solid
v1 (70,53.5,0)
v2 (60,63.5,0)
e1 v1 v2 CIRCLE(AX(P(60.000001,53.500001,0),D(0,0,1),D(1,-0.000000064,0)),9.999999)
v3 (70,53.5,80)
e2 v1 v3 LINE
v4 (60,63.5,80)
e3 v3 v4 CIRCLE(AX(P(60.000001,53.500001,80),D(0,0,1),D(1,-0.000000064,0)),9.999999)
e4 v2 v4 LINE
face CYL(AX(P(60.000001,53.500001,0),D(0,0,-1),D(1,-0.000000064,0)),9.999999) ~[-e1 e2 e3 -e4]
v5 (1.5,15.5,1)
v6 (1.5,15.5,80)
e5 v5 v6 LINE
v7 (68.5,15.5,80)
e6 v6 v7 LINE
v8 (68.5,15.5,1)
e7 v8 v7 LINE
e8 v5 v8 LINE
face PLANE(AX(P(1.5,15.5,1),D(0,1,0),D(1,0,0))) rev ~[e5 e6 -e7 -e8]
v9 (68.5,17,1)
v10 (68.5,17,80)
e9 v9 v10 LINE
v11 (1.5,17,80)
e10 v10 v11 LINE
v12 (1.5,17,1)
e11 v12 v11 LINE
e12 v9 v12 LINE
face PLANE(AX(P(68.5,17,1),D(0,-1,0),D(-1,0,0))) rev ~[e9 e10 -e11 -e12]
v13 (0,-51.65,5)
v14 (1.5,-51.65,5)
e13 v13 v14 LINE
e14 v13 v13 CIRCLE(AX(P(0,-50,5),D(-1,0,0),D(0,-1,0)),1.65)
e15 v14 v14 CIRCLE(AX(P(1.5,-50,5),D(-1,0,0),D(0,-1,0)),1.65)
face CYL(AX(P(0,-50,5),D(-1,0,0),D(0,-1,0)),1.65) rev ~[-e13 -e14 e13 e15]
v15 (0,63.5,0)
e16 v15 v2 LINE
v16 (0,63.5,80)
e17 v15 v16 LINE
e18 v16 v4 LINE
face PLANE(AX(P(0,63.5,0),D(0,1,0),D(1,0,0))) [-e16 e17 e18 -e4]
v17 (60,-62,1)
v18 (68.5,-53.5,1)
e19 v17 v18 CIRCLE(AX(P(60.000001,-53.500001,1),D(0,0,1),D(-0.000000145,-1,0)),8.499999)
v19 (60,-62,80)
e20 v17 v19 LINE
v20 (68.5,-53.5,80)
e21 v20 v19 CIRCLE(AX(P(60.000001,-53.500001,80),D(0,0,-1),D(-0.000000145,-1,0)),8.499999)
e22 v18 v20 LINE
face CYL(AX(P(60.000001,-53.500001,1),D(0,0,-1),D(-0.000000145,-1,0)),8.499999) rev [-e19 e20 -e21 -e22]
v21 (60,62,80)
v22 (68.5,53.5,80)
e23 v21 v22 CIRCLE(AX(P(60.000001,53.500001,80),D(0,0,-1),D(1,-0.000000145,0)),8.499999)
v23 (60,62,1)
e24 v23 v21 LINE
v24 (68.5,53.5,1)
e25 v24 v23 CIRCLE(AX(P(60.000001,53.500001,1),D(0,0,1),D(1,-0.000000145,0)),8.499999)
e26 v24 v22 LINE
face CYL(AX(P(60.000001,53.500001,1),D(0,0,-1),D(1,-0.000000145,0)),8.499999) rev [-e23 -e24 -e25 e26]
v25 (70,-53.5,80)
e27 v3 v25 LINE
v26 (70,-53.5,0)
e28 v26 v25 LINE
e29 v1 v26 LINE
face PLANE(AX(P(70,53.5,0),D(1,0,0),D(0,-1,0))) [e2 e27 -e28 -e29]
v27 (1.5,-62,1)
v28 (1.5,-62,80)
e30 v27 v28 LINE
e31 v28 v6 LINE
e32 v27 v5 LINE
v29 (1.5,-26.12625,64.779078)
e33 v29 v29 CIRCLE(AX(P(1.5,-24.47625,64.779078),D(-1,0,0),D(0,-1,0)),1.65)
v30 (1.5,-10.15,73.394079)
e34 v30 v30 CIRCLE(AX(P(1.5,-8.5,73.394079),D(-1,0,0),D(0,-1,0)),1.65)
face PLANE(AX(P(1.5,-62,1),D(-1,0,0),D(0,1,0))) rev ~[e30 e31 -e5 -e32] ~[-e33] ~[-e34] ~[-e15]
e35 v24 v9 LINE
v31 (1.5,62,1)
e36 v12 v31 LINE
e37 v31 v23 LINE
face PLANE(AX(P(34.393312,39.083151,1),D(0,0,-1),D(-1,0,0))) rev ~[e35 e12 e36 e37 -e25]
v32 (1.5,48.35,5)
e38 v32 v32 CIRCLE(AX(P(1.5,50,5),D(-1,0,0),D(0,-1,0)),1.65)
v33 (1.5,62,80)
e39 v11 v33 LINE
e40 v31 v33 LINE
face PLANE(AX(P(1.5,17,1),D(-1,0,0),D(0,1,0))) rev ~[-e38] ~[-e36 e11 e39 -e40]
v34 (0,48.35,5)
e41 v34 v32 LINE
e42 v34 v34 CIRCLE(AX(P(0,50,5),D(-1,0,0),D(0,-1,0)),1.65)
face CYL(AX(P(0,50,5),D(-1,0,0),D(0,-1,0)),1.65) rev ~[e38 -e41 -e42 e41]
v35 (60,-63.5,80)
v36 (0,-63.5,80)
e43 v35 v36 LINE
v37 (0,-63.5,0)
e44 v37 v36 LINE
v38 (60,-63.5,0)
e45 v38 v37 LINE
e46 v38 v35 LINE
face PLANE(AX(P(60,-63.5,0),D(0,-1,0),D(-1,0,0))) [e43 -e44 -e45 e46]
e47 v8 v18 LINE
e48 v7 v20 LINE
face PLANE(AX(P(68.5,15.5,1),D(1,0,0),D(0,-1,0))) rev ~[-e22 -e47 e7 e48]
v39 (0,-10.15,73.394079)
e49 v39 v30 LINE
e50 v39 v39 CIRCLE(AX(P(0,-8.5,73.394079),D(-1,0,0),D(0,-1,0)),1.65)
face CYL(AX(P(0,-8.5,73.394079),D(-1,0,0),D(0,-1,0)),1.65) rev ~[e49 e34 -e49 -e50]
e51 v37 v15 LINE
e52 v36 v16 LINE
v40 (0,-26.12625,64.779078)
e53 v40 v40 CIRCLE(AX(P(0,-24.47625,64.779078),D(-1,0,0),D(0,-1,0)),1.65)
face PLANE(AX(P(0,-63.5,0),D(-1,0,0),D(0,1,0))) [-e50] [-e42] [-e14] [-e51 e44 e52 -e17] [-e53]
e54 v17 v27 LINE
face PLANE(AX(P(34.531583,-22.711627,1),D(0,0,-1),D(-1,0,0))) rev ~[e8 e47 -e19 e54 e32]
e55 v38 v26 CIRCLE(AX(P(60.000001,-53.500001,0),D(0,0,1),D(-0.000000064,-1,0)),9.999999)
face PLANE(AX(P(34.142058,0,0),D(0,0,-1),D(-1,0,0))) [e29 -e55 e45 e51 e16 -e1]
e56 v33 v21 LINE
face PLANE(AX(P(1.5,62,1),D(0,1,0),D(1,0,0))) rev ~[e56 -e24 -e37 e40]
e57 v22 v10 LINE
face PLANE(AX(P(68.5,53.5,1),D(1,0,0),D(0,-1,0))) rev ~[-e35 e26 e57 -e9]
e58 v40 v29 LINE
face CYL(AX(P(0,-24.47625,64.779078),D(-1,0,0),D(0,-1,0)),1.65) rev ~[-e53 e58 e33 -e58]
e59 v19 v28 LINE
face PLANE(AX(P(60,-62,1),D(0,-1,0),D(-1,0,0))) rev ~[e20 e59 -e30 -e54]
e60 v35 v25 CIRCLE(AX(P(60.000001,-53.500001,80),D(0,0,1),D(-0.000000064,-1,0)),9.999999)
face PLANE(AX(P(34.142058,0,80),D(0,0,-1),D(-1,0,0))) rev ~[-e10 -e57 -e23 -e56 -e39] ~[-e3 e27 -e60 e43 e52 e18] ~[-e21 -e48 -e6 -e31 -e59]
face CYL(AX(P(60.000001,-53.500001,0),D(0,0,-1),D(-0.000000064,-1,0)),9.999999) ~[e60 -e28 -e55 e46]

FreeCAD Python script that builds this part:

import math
import FreeCAD as App
import Part
import Sketcher

doc = App.newDocument("Part")
params = doc.addObject("Spreadsheet::Sheet", "Params")
for row, (alias, value) in enumerate([
    ("sketch1_radius", "9.999999 mm"),
    ("sketch1_width", "60 mm"),
    ("sketch1_height", "127 mm"),
    ("pad1_length", "80 mm"),
    ("sketch2_radius", "8.499999 mm"),
    ("sketch2_width", "67 mm"),
    ("sketch2_height", "45 mm"),
    ("sketch2_height2", "69 mm"),
    ("sketch3_diameter", "3.3 mm"),
    ("pocket2_length", "5 mm"),
], start=1):
    params.set(f"A{row}", alias)
    params.set(f"B{row}", "=" + value)
    params.setAlias(f"B{row}", alias)

body = doc.addObject("PartDesign::Body", "Body")

sketch1 = body.newObject("Sketcher::SketchObject", "Sketch")
sketch1.AttachmentSupport = (doc.getObject("XY_Plane"), [""])
sketch1.MapMode = "FlatFace"
sketch1.addGeometry([
    Part.LineSegment(App.Vector(60, 64, 0), App.Vector(0, 64, 0)),
    Part.LineSegment(App.Vector(0, 64, 0), App.Vector(0, -64, 0)),
    Part.LineSegment(App.Vector(0, -64, 0), App.Vector(60, -64, 0)),
    Part.ArcOfCircle(Part.Circle(App.Vector(60, -54, 0), App.Vector(0, 0, 1), 10), math.radians(-90), math.radians(0)),
    Part.LineSegment(App.Vector(70, -54, 0), App.Vector(70, 54, 0)),
    Part.ArcOfCircle(Part.Circle(App.Vector(60, 54, 0), App.Vector(0, 0, 1), 10), math.radians(0), math.radians(90)),
], False)
sketch1.addConstraint([
    Sketcher.Constraint("Coincident", 0, 2, 1, 1),
    Sketcher.Constraint("Coincident", 1, 2, 2, 1),
    Sketcher.Constraint("Tangent", 2, 2, 3, 1),
    Sketcher.Constraint("Tangent", 3, 2, 4, 1),
    Sketcher.Constraint("Tangent", 4, 2, 5, 1),
    Sketcher.Constraint("Tangent", 5, 2, 0, 1),
    Sketcher.Constraint("Horizontal", 0),
    Sketcher.Constraint("Vertical", 1),
    Sketcher.Constraint("Horizontal", 2),
    Sketcher.Constraint("Vertical", 4),
    Sketcher.Constraint("Equal", 3, 5),
    Sketcher.Constraint("Symmetric", 0, 2, 1, 2, -1, 1),
    Sketcher.Constraint("Radius", 3, 9.999999),
    Sketcher.Constraint("DistanceX", 0, 2, 0, 1, 60.0),
    Sketcher.Constraint("DistanceY", 1, 2, 1, 1, 127.0),
])
sketch1.setExpression("Constraints[12]", "Params.sketch1_radius")
sketch1.setExpression("Constraints[13]", "Params.sketch1_width")
sketch1.setExpression("Constraints[14]", "Params.sketch1_height")
pad1 = body.newObject("PartDesign::Pad", "Pad")
pad1.Profile = sketch1
pad1.setExpression("Length", "Params.pad1_length")

sketch2 = body.newObject("Sketcher::SketchObject", "Sketch001")
sketch2.AttachmentSupport = (doc.getObject("XY_Plane"), [""])
sketch2.MapMode = "FlatFace"
sketch2.AttachmentOffset = App.Placement(App.Vector(0, 0, 1), App.Rotation())
sketch2.addGeometry([
    Part.LineSegment(App.Vector(60, 62, 0), App.Vector(2, 62, 0)),
    Part.LineSegment(App.Vector(2, 62, 0), App.Vector(2, 17, 0)),
    Part.LineSegment(App.Vector(2, 17, 0), App.Vector(68, 17, 0)),
    Part.LineSegment(App.Vector(68, 17, 0), App.Vector(68, 54, 0)),
    Part.ArcOfCircle(Part.Circle(App.Vector(60, 54, 0), App.Vector(0, 0, 1), 8), math.radians(0), math.radians(90)),
    Part.LineSegment(App.Vector(68, 16, 0), App.Vector(2, 16, 0)),
    Part.LineSegment(App.Vector(2, 16, 0), App.Vector(2, -62, 0)),
    Part.LineSegment(App.Vector(2, -62, 0), App.Vector(60, -62, 0)),
    Part.ArcOfCircle(Part.Circle(App.Vector(60, -54, 0), App.Vector(0, 0, 1), 8), math.radians(-90), math.radians(0)),
    Part.LineSegment(App.Vector(68, -54, 0), App.Vector(68, 16, 0)),
], False)
sketch2.addConstraint([
    Sketcher.Constraint("Coincident", 0, 2, 1, 1),
    Sketcher.Constraint("Coincident", 1, 2, 2, 1),
    Sketcher.Constraint("Coincident", 2, 2, 3, 1),
    Sketcher.Constraint("Tangent", 3, 2, 4, 1),
    Sketcher.Constraint("Tangent", 4, 2, 0, 1),
    Sketcher.Constraint("Coincident", 5, 2, 6, 1),
    Sketcher.Constraint("Coincident", 6, 2, 7, 1),
    Sketcher.Constraint("Tangent", 7, 2, 8, 1),
    Sketcher.Constraint("Tangent", 8, 2, 9, 1),
    Sketcher.Constraint("Coincident", 9, 2, 5, 1),
    Sketcher.Constraint("Horizontal", 0),
    Sketcher.Constraint("Vertical", 1),
    Sketcher.Constraint("Horizontal", 2),
    Sketcher.Constraint("Vertical", 3),
    Sketcher.Constraint("Horizontal", 5),
    Sketcher.Constraint("Vertical", 6),
    Sketcher.Constraint("Horizontal", 7),
    Sketcher.Constraint("Vertical", 9),
    Sketcher.Constraint("Equal", 4, 8),
    Sketcher.Constraint("Symmetric", 4, 3, 8, 3, -1),
    Sketcher.Constraint("Vertical", 1, 2, 5, 2),
    Sketcher.Constraint("Radius", 4, 8.499999),
    Sketcher.Constraint("DistanceX", 2, 1, 2, 2, 67.0),
    Sketcher.Constraint("DistanceY", 1, 2, 1, 1, 45.0),
    Sketcher.Constraint("DistanceY", 9, 1, 9, 2, 69.0),
    Sketcher.Constraint("DistanceX", -1, 1, 4, 3, 60.000001),
    Sketcher.Constraint("DistanceY", -1, 1, 0, 2, 62.0),
])
sketch2.setExpression("Constraints[21]", "Params.sketch2_radius")
sketch2.setExpression("Constraints[22]", "Params.sketch2_width")
sketch2.setExpression("Constraints[23]", "Params.sketch2_height")
sketch2.setExpression("Constraints[24]", "Params.sketch2_height2")
pocket1 = body.newObject("PartDesign::Pocket", "Pocket")
pocket1.Profile = sketch2
pocket1.Type = "ThroughAll"
pocket1.Reversed = True

sketch3 = body.newObject("Sketcher::SketchObject", "Sketch002")
sketch3.AttachmentSupport = (doc.getObject("YZ_Plane"), [""])
sketch3.MapMode = "FlatFace"
sketch3.addGeometry([
    Part.Circle(App.Vector(50, 5, 0), App.Vector(0, 0, 1), 1.6),
    Part.Circle(App.Vector(-50, 5, 0), App.Vector(0, 0, 1), 1.6),
    Part.Circle(App.Vector(-8.5, 73.4, 0), App.Vector(0, 0, 1), 1.6),
    Part.Circle(App.Vector(-24.5, 64.8, 0), App.Vector(0, 0, 1), 1.6),
], False)
sketch3.addConstraint([
    Sketcher.Constraint("Equal", 0, 1),
    Sketcher.Constraint("Equal", 1, 2),
    Sketcher.Constraint("Equal", 2, 3),
    Sketcher.Constraint("Symmetric", 0, 3, 1, 3, -2),
    Sketcher.Constraint("Diameter", 0, 3.3),
    Sketcher.Constraint("DistanceX", -1, 1, 0, 3, 50.0),
    Sketcher.Constraint("DistanceY", -1, 1, 0, 3, 5.0),
    Sketcher.Constraint("DistanceX", 2, 3, -1, 1, 8.5),
    Sketcher.Constraint("DistanceY", 3, 3, 2, 3, 8.615001),
    Sketcher.Constraint("DistanceY", -1, 1, 2, 3, 73.394079),
    Sketcher.Constraint("DistanceX", 3, 3, -1, 1, 24.47625),
])
sketch3.setExpression("Constraints[4]", "Params.sketch3_diameter")
pocket2 = body.newObject("PartDesign::Pocket", "Pocket001")
pocket2.Profile = sketch3
pocket2.setExpression("Length", "Params.pocket2_length")
pocket2.Reversed = True

doc.recompute()
